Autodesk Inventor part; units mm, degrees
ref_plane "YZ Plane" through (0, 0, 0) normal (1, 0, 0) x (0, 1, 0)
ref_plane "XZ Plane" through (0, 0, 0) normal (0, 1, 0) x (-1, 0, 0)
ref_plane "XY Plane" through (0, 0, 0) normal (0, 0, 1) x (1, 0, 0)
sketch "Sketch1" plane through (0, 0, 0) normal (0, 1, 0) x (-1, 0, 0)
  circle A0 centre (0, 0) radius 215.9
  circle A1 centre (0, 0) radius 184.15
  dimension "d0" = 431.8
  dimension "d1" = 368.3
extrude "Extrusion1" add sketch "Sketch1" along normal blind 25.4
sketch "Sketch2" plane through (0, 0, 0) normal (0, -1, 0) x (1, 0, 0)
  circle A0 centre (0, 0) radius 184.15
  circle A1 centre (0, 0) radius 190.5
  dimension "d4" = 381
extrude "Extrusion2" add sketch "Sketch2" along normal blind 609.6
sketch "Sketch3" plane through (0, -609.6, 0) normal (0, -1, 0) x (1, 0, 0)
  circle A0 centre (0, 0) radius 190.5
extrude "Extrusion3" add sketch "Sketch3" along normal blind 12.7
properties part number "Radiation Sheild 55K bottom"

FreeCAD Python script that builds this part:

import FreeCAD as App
import Part
import Sketcher
Q = App.Units.Quantity

doc = App.newDocument("Part")
body = doc.addObject("PartDesign::Body", "Body")

# Sketch on XZ plane
sketch1 = body.newObject("Sketcher::SketchObject", "Sketch")
sketch1.AttachmentSupport = (doc.getObject("XZ_Plane"), [""])
sketch1.MapMode = "FlatFace"
sketch1.addGeometry(Part.Circle(App.Vector(0, 0, 0), App.Vector(0, 0, 1), 215.9), False)
sketch1.addGeometry(Part.Circle(App.Vector(0, 0, 0), App.Vector(0, 0, 1), 184.15), False)
sketch1.addConstraint(Sketcher.Constraint("Coincident", 0, 3, -1, 1))
sketch1.addConstraint(Sketcher.Constraint("Coincident", 1, 3, -1, 1))
sketch1.addConstraint(Sketcher.Constraint("Diameter", 0, Q("17 in")))
sketch1.addConstraint(Sketcher.Constraint("Diameter", 1, Q("14.5 in")))
pad1 = body.newObject("PartDesign::Pad", "Pad")
pad1.Profile = sketch1
pad1.Length = Q("1 in")
pad1.Reversed = True

# Sketch on XZ plane
sketch2 = body.newObject("Sketcher::SketchObject", "Sketch001")
sketch2.AttachmentSupport = (doc.getObject("XZ_Plane"), [""])
sketch2.MapMode = "FlatFace"
sketch2.addGeometry(Part.Circle(App.Vector(0, 0, 0), App.Vector(0, 0, 1), 190.5), False)
sketch2.addGeometry(Part.Circle(App.Vector(0, 0, 0), App.Vector(0, 0, 1), 184.15), False)
sketch2.addConstraint(Sketcher.Constraint("Coincident", 0, 3, -1, 1))
sketch2.addConstraint(Sketcher.Constraint("Coincident", 1, 3, -1, 1))
sketch2.addConstraint(Sketcher.Constraint("Diameter", 0, Q("15 in")))
sketch2.addConstraint(Sketcher.Constraint("Diameter", 1, Q("14.5 in")))
pad2 = body.newObject("PartDesign::Pad", "Pad001")
pad2.Profile = sketch2
pad2.Length = Q("24 in")

# Sketch on XZ plane
sketch3 = body.newObject("Sketcher::SketchObject", "Sketch002")
sketch3.AttachmentSupport = (doc.getObject("XZ_Plane"), [""])
sketch3.MapMode = "FlatFace"
sketch3.AttachmentOffset = App.Placement(App.Vector(0, 0, 24 * 25.4), App.Rotation())
sketch3.addGeometry(Part.Circle(App.Vector(0, 0, 0), App.Vector(0, 0, 1), 190.5), False)
sketch3.addConstraint(Sketcher.Constraint("Coincident", 0, 3, -1, 1))
sketch3.addConstraint(Sketcher.Constraint("Diameter", 0, Q("15 in")))
pad3 = body.newObject("PartDesign::Pad", "Pad002")
pad3.Profile = sketch3
pad3.Length = Q("0.5 in")

doc.recompute()
